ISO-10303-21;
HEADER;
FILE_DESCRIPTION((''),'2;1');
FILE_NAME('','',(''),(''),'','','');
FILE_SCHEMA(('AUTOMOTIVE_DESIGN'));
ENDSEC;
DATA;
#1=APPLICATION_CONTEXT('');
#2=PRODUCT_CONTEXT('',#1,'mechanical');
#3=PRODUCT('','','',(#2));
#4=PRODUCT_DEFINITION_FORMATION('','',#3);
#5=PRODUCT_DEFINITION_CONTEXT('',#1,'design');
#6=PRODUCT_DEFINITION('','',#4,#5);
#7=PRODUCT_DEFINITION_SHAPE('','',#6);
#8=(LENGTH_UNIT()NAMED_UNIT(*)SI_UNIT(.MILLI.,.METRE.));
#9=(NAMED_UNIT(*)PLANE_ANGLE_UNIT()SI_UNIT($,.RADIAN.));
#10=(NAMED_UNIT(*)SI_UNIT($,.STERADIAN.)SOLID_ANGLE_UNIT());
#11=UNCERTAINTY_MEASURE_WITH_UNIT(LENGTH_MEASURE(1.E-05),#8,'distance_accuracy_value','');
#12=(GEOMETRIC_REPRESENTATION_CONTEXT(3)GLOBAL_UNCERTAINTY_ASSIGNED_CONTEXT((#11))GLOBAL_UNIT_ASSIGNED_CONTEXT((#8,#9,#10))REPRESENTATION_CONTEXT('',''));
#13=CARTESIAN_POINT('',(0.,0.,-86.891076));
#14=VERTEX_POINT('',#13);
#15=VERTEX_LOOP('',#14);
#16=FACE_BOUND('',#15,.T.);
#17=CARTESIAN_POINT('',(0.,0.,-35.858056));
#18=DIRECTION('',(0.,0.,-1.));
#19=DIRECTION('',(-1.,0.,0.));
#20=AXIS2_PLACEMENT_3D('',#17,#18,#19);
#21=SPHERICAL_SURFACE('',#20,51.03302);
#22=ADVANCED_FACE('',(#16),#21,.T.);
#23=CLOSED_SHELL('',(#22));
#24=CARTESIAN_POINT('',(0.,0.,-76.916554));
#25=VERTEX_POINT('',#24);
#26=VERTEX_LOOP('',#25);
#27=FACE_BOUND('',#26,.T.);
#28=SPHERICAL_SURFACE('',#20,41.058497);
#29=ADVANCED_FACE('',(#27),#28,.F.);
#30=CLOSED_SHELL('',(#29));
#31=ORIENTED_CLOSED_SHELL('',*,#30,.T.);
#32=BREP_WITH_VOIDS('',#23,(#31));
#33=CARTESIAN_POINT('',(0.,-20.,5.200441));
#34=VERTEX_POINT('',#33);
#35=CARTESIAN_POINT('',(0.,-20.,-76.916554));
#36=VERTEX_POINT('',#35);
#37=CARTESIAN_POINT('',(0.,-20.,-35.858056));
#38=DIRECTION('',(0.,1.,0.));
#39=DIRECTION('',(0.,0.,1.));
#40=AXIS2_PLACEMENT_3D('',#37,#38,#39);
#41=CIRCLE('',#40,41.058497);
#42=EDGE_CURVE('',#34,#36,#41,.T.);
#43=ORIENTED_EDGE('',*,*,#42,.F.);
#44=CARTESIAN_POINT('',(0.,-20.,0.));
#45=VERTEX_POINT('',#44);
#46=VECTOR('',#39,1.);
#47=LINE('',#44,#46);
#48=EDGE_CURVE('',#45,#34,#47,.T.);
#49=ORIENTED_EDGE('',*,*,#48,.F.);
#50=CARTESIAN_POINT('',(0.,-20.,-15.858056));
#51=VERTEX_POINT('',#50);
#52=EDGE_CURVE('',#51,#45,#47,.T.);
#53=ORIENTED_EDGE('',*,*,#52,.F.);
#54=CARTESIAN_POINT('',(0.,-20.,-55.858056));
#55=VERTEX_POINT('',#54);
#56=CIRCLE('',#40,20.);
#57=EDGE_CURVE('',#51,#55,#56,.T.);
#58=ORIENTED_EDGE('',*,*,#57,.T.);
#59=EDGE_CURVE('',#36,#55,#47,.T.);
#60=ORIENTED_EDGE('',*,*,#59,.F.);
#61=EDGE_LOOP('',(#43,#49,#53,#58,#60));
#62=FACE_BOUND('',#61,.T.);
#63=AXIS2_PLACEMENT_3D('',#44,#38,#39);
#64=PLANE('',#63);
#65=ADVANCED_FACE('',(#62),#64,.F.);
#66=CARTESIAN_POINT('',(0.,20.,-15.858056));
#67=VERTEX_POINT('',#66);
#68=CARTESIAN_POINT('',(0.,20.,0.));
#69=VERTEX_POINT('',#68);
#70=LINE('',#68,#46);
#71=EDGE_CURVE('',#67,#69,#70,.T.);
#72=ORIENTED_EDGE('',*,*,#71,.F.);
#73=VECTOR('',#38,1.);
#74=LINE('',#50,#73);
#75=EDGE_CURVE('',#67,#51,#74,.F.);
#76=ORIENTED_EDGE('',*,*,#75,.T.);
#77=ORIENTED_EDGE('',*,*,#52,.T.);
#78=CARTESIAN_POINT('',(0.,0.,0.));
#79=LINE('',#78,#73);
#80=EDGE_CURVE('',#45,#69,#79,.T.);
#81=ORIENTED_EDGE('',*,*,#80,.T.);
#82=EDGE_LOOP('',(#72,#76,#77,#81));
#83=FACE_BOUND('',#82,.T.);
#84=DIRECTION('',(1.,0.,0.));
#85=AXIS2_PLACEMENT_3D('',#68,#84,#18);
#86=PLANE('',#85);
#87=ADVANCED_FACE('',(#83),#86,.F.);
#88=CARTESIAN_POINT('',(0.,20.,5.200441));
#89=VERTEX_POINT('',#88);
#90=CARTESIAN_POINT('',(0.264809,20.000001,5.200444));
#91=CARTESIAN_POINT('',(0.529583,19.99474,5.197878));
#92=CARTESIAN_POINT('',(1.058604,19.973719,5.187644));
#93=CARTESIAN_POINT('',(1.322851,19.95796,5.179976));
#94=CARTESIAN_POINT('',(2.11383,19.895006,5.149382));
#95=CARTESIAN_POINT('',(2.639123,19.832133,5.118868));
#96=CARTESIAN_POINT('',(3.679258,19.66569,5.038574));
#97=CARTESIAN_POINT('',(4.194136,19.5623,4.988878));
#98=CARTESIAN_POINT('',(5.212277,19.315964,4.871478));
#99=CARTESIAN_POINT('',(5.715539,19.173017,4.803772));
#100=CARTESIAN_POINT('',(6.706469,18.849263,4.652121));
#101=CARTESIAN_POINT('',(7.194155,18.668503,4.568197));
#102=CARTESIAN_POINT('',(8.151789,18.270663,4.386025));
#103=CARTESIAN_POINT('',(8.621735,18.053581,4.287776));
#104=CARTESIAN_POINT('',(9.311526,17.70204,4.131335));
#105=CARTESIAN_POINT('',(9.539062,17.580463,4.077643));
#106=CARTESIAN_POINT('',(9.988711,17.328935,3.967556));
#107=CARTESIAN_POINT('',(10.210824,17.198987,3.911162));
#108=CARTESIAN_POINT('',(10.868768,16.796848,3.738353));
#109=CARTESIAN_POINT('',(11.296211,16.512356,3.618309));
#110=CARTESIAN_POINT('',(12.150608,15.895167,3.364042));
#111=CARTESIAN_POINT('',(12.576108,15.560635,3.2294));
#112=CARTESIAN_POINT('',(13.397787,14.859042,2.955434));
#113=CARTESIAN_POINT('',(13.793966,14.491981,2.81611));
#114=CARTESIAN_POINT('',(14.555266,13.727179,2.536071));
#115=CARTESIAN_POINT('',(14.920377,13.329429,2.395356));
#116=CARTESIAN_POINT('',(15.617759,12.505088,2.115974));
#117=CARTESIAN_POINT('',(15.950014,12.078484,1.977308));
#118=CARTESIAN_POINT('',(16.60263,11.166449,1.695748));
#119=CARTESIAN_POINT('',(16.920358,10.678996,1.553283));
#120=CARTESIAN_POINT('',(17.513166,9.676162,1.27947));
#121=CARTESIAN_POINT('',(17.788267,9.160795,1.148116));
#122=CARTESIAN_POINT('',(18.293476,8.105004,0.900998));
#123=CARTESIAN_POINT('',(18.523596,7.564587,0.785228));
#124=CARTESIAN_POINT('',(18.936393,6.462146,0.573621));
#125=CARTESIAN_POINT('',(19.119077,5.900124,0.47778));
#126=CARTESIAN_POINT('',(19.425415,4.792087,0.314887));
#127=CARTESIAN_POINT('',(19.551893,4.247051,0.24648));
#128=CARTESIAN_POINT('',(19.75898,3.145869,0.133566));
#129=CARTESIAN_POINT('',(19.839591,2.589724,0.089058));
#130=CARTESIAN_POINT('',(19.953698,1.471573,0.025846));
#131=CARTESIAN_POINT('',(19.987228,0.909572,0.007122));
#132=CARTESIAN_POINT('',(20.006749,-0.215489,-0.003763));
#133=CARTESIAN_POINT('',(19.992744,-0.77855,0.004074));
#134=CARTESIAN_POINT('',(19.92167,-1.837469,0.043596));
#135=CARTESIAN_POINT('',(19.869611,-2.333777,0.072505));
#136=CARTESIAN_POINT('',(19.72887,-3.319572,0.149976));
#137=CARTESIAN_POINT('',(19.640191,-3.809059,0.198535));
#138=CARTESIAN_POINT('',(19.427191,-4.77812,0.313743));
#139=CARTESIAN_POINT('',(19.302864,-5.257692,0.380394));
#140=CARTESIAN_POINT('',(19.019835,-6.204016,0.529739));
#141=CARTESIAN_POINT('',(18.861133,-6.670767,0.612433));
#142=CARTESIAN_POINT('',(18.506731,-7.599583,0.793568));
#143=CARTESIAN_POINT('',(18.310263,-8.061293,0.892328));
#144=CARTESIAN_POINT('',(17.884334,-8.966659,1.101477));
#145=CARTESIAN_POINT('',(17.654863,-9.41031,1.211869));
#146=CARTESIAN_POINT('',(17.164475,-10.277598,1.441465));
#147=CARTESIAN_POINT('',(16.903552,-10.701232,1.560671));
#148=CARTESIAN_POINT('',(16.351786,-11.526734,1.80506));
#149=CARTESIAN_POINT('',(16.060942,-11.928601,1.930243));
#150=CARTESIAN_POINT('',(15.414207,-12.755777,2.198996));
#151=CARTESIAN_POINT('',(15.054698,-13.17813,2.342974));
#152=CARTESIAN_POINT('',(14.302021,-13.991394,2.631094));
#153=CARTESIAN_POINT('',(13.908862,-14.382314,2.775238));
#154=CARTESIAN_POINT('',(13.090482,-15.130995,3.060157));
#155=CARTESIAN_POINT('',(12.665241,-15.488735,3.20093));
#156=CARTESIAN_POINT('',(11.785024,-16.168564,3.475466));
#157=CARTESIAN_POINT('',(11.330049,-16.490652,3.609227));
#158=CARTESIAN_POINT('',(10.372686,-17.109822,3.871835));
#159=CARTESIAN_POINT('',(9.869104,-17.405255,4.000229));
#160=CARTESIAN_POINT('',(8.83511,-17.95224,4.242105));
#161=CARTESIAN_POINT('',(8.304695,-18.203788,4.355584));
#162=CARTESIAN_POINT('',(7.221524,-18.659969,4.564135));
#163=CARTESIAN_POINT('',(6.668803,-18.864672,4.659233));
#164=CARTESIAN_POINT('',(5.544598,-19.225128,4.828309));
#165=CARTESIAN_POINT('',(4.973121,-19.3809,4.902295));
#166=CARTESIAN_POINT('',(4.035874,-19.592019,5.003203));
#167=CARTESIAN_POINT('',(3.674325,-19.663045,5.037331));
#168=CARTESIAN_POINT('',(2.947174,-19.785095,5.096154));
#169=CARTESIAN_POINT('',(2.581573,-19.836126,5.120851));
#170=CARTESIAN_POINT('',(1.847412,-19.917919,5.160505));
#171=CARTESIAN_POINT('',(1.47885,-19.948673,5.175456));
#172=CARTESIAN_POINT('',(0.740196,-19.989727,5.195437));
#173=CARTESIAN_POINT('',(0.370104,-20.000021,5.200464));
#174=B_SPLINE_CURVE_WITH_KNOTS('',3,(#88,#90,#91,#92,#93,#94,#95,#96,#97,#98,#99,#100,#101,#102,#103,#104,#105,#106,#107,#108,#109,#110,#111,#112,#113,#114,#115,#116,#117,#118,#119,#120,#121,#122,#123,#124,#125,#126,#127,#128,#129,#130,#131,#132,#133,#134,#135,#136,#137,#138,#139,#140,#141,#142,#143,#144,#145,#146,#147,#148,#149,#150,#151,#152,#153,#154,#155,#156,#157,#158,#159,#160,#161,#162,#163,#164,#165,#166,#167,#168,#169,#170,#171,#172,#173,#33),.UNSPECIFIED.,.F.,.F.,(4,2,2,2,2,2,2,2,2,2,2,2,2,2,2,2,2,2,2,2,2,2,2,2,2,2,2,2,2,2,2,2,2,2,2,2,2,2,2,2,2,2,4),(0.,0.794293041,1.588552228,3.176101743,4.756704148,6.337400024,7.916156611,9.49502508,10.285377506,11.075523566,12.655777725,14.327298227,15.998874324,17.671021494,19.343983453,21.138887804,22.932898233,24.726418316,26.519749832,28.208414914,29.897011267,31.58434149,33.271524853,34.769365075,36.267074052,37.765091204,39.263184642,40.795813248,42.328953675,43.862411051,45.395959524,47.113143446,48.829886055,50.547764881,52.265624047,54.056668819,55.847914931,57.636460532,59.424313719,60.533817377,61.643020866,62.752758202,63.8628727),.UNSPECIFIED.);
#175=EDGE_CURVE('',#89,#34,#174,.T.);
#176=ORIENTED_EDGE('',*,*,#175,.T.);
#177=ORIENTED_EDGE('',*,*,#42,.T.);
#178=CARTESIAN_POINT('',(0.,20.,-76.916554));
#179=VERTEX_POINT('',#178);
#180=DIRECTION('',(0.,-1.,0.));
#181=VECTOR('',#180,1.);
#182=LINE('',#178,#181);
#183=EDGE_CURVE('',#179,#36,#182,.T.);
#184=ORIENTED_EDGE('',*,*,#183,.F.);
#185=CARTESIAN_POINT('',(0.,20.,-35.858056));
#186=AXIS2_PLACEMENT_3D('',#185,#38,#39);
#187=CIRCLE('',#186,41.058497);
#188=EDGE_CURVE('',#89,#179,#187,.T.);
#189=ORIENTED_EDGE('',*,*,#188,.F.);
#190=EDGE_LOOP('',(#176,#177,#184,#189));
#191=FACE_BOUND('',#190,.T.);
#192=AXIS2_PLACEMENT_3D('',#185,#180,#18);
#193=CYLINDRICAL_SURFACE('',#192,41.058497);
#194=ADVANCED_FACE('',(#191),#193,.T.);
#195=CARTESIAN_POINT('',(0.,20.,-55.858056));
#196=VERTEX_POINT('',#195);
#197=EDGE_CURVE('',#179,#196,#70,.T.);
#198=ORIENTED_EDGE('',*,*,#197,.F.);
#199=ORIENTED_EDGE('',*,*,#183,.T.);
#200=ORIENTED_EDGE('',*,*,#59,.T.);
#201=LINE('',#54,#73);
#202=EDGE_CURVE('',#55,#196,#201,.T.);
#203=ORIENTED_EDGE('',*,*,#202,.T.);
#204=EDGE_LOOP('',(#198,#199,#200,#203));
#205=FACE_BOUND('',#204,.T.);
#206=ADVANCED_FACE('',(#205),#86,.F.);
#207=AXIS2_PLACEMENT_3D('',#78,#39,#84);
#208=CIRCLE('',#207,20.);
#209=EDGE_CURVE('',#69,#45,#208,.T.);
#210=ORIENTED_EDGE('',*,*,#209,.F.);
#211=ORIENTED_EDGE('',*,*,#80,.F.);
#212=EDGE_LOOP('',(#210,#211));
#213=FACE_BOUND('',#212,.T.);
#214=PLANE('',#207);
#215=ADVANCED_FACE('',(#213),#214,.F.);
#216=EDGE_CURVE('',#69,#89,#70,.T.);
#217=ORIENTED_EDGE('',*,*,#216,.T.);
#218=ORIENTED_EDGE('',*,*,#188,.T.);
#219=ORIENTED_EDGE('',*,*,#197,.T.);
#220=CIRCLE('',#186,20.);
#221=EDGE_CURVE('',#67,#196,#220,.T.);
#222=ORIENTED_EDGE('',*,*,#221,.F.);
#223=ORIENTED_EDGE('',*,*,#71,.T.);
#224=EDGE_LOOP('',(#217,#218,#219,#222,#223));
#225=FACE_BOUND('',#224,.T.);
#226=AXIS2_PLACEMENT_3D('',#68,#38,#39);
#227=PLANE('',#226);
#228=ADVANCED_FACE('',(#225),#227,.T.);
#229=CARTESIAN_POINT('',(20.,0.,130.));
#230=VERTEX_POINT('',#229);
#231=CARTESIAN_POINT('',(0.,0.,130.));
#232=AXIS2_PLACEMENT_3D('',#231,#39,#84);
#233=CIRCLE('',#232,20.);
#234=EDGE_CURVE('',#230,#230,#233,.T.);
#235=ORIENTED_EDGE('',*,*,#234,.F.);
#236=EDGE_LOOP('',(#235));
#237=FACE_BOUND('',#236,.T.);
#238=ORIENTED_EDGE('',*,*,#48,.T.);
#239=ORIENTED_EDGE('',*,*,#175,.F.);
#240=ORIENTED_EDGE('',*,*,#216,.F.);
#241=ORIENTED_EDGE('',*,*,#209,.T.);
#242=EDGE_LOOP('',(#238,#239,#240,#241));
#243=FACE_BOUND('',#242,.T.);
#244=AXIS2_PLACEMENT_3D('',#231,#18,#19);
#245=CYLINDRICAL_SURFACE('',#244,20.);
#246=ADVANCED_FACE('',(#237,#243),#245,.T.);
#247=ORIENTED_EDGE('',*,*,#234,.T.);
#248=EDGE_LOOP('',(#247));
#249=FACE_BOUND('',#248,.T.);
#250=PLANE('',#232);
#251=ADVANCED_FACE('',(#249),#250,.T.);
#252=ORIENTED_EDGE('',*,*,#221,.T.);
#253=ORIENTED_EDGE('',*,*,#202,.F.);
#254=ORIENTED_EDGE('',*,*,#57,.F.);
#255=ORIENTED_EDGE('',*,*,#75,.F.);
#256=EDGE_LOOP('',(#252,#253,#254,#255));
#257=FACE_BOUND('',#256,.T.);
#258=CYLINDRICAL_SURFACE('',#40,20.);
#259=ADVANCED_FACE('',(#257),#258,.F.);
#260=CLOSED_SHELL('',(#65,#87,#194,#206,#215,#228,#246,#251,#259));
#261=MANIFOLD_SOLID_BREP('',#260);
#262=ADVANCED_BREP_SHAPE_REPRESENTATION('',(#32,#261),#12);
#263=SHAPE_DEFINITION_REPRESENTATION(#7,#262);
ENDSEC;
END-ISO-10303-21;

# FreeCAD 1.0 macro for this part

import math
import FreeCAD as App
import Part
import Sketcher

V = App.Vector
Q = App.Units.Quantity

doc = App.newDocument("Part")
body = doc.addObject("PartDesign::Body", "Body")

# Sketch on XY plane
sketch1 = body.newObject("Sketcher::SketchObject", "Sketch")
sketch1.AttachmentSupport = (doc.getObject("XY_Plane"), [""])
sketch1.MapMode = "FlatFace"
sketch1.addGeometry(Part.Circle(V(0, 0, 0), V(0, 0, 1), 20), False)
sketch1.addConstraint([
    Sketcher.Constraint("Coincident", 0, 3, -1, 1),
    Sketcher.Constraint("Diameter", 0, Q("40 mm")),
])
pad1 = body.newObject("PartDesign::Pad", "Pad")
pad1.Profile = sketch1
pad1.Length = 130

# Sketch on XZ plane
sketch2 = body.newObject("Sketcher::SketchObject", "Sketch001")
sketch2.AttachmentSupport = (doc.getObject("XZ_Plane"), [""])
sketch2.MapMode = "FlatFace"
sketch2.addGeometry([
    Part.ArcOfCircle(Part.Circle(V(0, -35.858056, 0), V(0, 0, 1), 41.058497), math.radians(-90), math.radians(0)),
    Part.LineSegment(V(0, -76.916554, 0), V(0, 5.200441, 0)),
    Part.ArcOfCircle(Part.Circle(V(0, -35.858056, 0), V(0, 0, 1), 41.058497), math.radians(0), math.radians(90)),
], False)
sketch2.addConstraint([
    Sketcher.Constraint("Coincident", 0, 1, 1, 1),
    Sketcher.Constraint("Coincident", 1, 2, 2, 2),
    Sketcher.Constraint("Tangent", 2, 1, 0, 2),
    Sketcher.Constraint("Vertical", 1),
    Sketcher.Constraint("Equal", 0, 2),
    Sketcher.Constraint("PointOnObject", 0, 3, -2),
    Sketcher.Constraint("PointOnObject", 0, 1, -2),
    Sketcher.Constraint("Horizontal", 0, 3, 2, 1),
    Sketcher.Constraint("Radius", 0, Q("41.058497 mm")),
    Sketcher.Constraint("DistanceY", -1, 1, 1, 2, Q("5.200441 mm")),
])
pad2 = body.newObject("PartDesign::Pad", "Pad001")
pad2.Profile = sketch2
pad2.Length = 40
pad2.Midplane = True

# Sketch on XZ plane
sketch3 = body.newObject("Sketcher::SketchObject", "Sketch002")
sketch3.AttachmentSupport = (doc.getObject("XZ_Plane"), [""])
sketch3.MapMode = "FlatFace"
sketch3.AttachmentOffset = App.Placement(V(0, 0, -20), App.Rotation())
sketch3.addGeometry(Part.Circle(V(0, -35.858056, 0), V(0, 0, 1), 20), False)
sketch3.addConstraint([
    Sketcher.Constraint("PointOnObject", 0, 3, -2),
    Sketcher.Constraint("Diameter", 0, Q("40 mm")),
    Sketcher.Constraint("DistanceY", 0, 3, -1, 1, Q("35.858056 mm")),
])
pocket1 = body.newObject("PartDesign::Pocket", "Pocket")
pocket1.Profile = sketch3
pocket1.Length = 40
pocket1.Reversed = True
body2 = doc.addObject("PartDesign::Body", "Body001")

# Sketch on XZ plane
sketch4 = body2.newObject("Sketcher::SketchObject", "Sketch003")
sketch4.AttachmentSupport = (doc.getObject("XZ_Plane001"), [""])
sketch4.MapMode = "FlatFace"
sketch4.addGeometry([
    Part.LineSegment(V(0, -76.916554, 0), V(0, -86.891076, 0)),
    Part.ArcOfCircle(Part.Circle(V(0, -35.858056, 0), V(0, 0, 1), 51.03302), math.radians(90), math.radians(270)),
    Part.LineSegment(V(0, 15.174963, 0), V(0, 5.200441, 0)),
    Part.ArcOfCircle(Part.Circle(V(0, -35.858056, 0), V(0, 0, 1), 41.058497), math.radians(90), math.radians(270)),
], False)
sketch4.addConstraint([
    Sketcher.Constraint("Coincident", 0, 2, 1, 2),
    Sketcher.Constraint("Coincident", 1, 1, 2, 1),
    Sketcher.Constraint("Coincident", 2, 2, 3, 1),
    Sketcher.Constraint("Coincident", 3, 2, 0, 1),
    Sketcher.Constraint("Vertical", 0),
    Sketcher.Constraint("Vertical", 2),
    Sketcher.Constraint("Coincident", 3, 3, 1, 3),
    Sketcher.Constraint("PointOnObject", 1, 3, -2),
    Sketcher.Constraint("PointOnObject", 0, 2, -2),
    Sketcher.Constraint("PointOnObject", 1, 1, -2),
    Sketcher.Constraint("Radius", 1, Q("51.03302 mm")),
    Sketcher.Constraint("Radius", 3, Q("41.058497 mm")),
    Sketcher.Constraint("DistanceY", -1, 1, 2, 2, Q("5.200441 mm")),
])
revolution = body2.newObject("PartDesign::Revolution", "Revolution")
revolution.Profile = sketch4
revolution.ReferenceAxis = (sketch4, ["V_Axis"])
revolution.Angle = 360

doc.recompute()
